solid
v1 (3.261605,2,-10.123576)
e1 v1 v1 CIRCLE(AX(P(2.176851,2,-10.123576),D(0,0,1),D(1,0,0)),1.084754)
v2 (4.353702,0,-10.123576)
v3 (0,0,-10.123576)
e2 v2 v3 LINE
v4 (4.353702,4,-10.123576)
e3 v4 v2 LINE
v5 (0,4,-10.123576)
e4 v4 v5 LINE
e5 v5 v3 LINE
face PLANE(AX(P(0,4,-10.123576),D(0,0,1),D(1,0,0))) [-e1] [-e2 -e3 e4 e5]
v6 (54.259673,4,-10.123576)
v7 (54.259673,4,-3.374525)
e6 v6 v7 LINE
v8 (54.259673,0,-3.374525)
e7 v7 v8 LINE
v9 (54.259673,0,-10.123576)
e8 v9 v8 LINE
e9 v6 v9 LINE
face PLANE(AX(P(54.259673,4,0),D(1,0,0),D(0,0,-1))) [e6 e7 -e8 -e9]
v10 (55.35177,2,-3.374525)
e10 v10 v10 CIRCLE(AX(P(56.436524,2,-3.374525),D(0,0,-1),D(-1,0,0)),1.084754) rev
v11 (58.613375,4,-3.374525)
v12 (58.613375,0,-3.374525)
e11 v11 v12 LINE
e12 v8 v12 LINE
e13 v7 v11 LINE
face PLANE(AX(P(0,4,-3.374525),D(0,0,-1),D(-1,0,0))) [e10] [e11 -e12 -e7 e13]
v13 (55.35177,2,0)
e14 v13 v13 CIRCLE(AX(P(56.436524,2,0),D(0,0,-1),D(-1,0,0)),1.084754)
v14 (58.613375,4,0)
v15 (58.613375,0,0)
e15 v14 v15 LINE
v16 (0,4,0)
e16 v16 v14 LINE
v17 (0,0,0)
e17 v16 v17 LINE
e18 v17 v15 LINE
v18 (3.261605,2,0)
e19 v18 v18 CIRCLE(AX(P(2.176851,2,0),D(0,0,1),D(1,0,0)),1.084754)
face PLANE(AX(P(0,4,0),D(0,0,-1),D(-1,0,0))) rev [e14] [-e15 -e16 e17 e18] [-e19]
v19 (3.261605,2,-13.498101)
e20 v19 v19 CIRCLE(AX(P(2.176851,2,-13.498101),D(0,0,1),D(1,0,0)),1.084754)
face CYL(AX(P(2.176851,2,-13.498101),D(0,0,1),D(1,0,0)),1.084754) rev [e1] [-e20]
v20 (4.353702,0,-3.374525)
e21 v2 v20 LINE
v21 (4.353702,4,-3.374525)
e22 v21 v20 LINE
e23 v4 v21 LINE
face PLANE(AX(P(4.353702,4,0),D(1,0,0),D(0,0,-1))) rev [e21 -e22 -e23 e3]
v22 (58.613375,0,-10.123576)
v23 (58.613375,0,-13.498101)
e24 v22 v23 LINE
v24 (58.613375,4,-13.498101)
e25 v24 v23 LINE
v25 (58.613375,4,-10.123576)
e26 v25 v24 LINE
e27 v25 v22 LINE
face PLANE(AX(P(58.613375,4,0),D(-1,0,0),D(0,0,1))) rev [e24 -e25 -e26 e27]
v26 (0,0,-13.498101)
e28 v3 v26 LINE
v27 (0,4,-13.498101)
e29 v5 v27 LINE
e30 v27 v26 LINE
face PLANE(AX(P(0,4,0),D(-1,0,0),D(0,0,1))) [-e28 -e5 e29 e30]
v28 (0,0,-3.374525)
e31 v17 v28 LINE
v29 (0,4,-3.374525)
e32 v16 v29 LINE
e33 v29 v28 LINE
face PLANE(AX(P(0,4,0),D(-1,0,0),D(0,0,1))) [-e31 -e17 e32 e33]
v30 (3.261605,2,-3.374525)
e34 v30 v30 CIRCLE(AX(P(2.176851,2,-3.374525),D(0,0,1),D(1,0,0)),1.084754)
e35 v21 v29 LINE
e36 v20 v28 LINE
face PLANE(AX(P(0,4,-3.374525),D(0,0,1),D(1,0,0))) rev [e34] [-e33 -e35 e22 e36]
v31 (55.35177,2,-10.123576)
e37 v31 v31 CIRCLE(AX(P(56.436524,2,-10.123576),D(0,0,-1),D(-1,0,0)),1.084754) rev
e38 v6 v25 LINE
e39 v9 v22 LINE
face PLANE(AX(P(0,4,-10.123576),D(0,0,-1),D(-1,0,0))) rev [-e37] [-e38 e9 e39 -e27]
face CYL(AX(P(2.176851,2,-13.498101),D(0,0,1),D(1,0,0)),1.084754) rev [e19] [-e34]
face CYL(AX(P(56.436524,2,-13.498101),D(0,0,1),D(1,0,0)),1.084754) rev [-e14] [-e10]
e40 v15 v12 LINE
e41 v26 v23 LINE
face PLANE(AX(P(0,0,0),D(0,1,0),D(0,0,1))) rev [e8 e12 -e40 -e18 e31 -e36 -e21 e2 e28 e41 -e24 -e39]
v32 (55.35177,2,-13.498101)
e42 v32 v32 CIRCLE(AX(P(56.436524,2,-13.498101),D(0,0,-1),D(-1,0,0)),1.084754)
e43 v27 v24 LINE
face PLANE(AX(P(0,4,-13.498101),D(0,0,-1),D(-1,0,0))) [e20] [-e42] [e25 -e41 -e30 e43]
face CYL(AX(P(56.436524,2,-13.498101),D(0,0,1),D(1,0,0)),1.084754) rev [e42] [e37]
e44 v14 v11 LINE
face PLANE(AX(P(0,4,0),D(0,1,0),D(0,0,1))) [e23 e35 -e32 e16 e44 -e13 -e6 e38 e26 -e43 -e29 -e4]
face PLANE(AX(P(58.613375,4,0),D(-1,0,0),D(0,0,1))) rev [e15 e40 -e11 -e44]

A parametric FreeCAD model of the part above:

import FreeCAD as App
import Part
import Sketcher
from FreeCAD import Vector


def add_polygon(sketch, points):
    """Adds a closed chain of lines whose ends are joined by coincident constraints."""
    first, n = sketch.GeometryCount, len(points)
    for a, b in zip(points, points[1:] + points[:1]):
        sketch.addGeometry(Part.LineSegment(App.Vector(*a, 0), App.Vector(*b, 0)), False)
    for i in range(n):
        sketch.addConstraint(Sketcher.Constraint("Coincident", first + i, 2, first + (i + 1) % n, 1))

doc = App.newDocument("Part")
body = doc.addObject("PartDesign::Body", "Body")

# Sketch on XZ plane
sketch1 = body.newObject("Sketcher::SketchObject", "Sketch")
sketch1.AttachmentSupport = (doc.getObject("XZ_Plane"), [""])
sketch1.MapMode = "FlatFace"
add_polygon(sketch1, [(54.3, -3.4), (54.3, -10.1), (58.6, -10.1), (58.6, -13.5), (54.3, -13.5), (4.4, -13.5), (0, -13.5), (0, -10.1), (4.4, -10.1), (4.4, -3.4), (0, -3.4), (0, 0), (58.6, 0), (58.6, -3.4)])  # lines 0-13
sketch1.addConstraint([
    Sketcher.Constraint("Vertical", 0),
    Sketcher.Constraint("Horizontal", 1),
    Sketcher.Constraint("Vertical", 2),
    Sketcher.Constraint("Horizontal", 3),
    Sketcher.Constraint("Horizontal", 4),
    Sketcher.Constraint("Horizontal", 5),
    Sketcher.Constraint("Vertical", 6),
    Sketcher.Constraint("Horizontal", 7),
    Sketcher.Constraint("Vertical", 8),
    Sketcher.Constraint("Horizontal", 9),
    Sketcher.Constraint("Vertical", 10),
    Sketcher.Constraint("Horizontal", 11),
    Sketcher.Constraint("Vertical", 12),
    Sketcher.Constraint("Horizontal", 13),
    Sketcher.Constraint("Coincident", 10, 2, -1, 1),
    Sketcher.Constraint("PointOnObject", 5, 2, -2),
    Sketcher.Constraint("Horizontal", 1, 2, 6, 2),
    Sketcher.Constraint("Horizontal", 9, 2, 12, 2),
    Sketcher.Constraint("Vertical", 0, 2, 3, 2),
    Sketcher.Constraint("Vertical", 4, 2, 7, 2),
    Sketcher.Constraint("Vertical", 2, 2, 11, 2),
    Sketcher.Constraint("Equal", 3, 5),
    Sketcher.Constraint("Equal", 6, 10),
    Sketcher.Constraint("DistanceX", 1, 1, 1, 2, 4.353702),
    Sketcher.Constraint("DistanceX", 4, 2, 4, 1, 49.905972),
    Sketcher.Constraint("DistanceY", 0, 2, 0, 1, 6.74905),
    Sketcher.Constraint("DistanceY", 2, 2, -1, 1, 13.498101),
])
pad1 = body.newObject("PartDesign::Pad", "Pad")
pad1.Profile = sketch1
pad1.Length = 4
pad1.Reversed = True

# Sketch on XY plane
sketch2 = body.newObject("Sketcher::SketchObject", "Sketch001")
sketch2.AttachmentSupport = (doc.getObject("XY_Plane"), [""])
sketch2.MapMode = "FlatFace"
sketch2.addGeometry([
    Part.Circle(Vector(2.2, 2, 0), Vector(0, 0, 1), 1.1),
    Part.Circle(Vector(56.4, 2, 0), Vector(0, 0, 1), 1.1),
], False)
sketch2.addConstraint([
    Sketcher.Constraint("Equal", 0, 1),
    Sketcher.Constraint("Horizontal", 0, 3, 1, 3),
    Sketcher.Constraint("DistanceY", -1, 1, 0, 3, 2.0),
    Sketcher.Constraint("Diameter", 0, 2.169508),
    Sketcher.Constraint("DistanceX", -1, 1, 0, 3, 2.176851),
    Sketcher.Constraint("DistanceX", -1, 1, 1, 3, 56.436524),
])
pocket1 = body.newObject("PartDesign::Pocket", "Pocket")
pocket1.Profile = sketch2
pocket1.Length = 13.498101

doc.recompute()
